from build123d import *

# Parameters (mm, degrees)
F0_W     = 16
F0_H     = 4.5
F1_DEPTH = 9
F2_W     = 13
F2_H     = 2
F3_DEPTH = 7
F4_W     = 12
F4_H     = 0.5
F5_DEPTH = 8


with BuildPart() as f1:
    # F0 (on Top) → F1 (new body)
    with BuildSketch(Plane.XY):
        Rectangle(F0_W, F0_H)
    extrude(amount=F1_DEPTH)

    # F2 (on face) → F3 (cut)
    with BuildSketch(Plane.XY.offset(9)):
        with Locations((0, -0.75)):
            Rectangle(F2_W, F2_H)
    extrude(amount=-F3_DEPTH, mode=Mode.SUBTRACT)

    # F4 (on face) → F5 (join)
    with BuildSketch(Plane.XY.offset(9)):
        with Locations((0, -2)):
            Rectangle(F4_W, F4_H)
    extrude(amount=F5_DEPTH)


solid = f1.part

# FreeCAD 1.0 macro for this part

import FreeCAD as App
import Part
import Sketcher

doc = App.newDocument("Part")
body = doc.addObject("PartDesign::Body", "Body")

sketch1 = body.newObject("Sketcher::SketchObject", "Sketch")
sketch1.AttachmentSupport = (doc.getObject("XY_Plane"), [""])
sketch1.MapMode = "FlatFace"
sketch1.addGeometry(Part.LineSegment(App.Vector(-8, 2.25, 0), App.Vector(-8, -2.25, 0)), False)
sketch1.addGeometry(Part.LineSegment(App.Vector(-8, -2.25, 0), App.Vector(8, -2.25, 0)), False)
sketch1.addGeometry(Part.LineSegment(App.Vector(8, -2.25, 0), App.Vector(8, 2.25, 0)), False)
sketch1.addGeometry(Part.LineSegment(App.Vector(8, 2.25, 0), App.Vector(-8, 2.25, 0)), False)
sketch1.addConstraint(Sketcher.Constraint("Coincident", 0, 2, 1, 1))
sketch1.addConstraint(Sketcher.Constraint("Coincident", 1, 2, 2, 1))
sketch1.addConstraint(Sketcher.Constraint("Coincident", 2, 2, 3, 1))
sketch1.addConstraint(Sketcher.Constraint("Coincident", 3, 2, 0, 1))
sketch1.addConstraint(Sketcher.Constraint("Vertical", 0))
sketch1.addConstraint(Sketcher.Constraint("Horizontal", 1))
sketch1.addConstraint(Sketcher.Constraint("Vertical", 2))
sketch1.addConstraint(Sketcher.Constraint("Horizontal", 3))
sketch1.addConstraint(Sketcher.Constraint("Symmetric", 0, 2, 2, 2, -1, 1))
sketch1.addConstraint(Sketcher.Constraint("DistanceX", 1, 1, 1, 2, 16.0))
sketch1.addConstraint(Sketcher.Constraint("DistanceY", 0, 2, 0, 1, 4.5))
pad1 = body.newObject("PartDesign::Pad", "Pad")
pad1.Profile = sketch1
pad1.Length = 9

sketch2 = body.newObject("Sketcher::SketchObject", "Sketch001")
sketch2.AttachmentSupport = (doc.getObject("XY_Plane"), [""])
sketch2.MapMode = "FlatFace"
sketch2.AttachmentOffset = App.Placement(App.Vector(0, 0, 9), App.Rotation())
sketch2.addGeometry(Part.LineSegment(App.Vector(-6.5, 0.25, 0), App.Vector(-6.5, -1.75, 0)), False)
sketch2.addGeometry(Part.LineSegment(App.Vector(-6.5, -1.75, 0), App.Vector(6.5, -1.75, 0)), False)
sketch2.addGeometry(Part.LineSegment(App.Vector(6.5, -1.75, 0), App.Vector(6.5, 0.25, 0)), False)
sketch2.addGeometry(Part.LineSegment(App.Vector(6.5, 0.25, 0), App.Vector(-6.5, 0.25, 0)), False)
sketch2.addConstraint(Sketcher.Constraint("Coincident", 0, 2, 1, 1))
sketch2.addConstraint(Sketcher.Constraint("Coincident", 1, 2, 2, 1))
sketch2.addConstraint(Sketcher.Constraint("Coincident", 2, 2, 3, 1))
sketch2.addConstraint(Sketcher.Constraint("Coincident", 3, 2, 0, 1))
sketch2.addConstraint(Sketcher.Constraint("Vertical", 0))
sketch2.addConstraint(Sketcher.Constraint("Horizontal", 1))
sketch2.addConstraint(Sketcher.Constraint("Vertical", 2))
sketch2.addConstraint(Sketcher.Constraint("Horizontal", 3))
sketch2.addConstraint(Sketcher.Constraint("DistanceX", 1, 1, 1, 2, 13.0))
sketch2.addConstraint(Sketcher.Constraint("DistanceY", 0, 2, 0, 1, 2.0))
sketch2.addConstraint(Sketcher.Constraint("DistanceX", 0, 2, -1, 1, 6.5))
sketch2.addConstraint(Sketcher.Constraint("DistanceY", 0, 2, -1, 1, 1.75))
pocket1 = body.newObject("PartDesign::Pocket", "Pocket")
pocket1.Profile = sketch2
pocket1.Length = 7

sketch3 = body.newObject("Sketcher::SketchObject", "Sketch002")
sketch3.AttachmentSupport = (doc.getObject("XY_Plane"), [""])
sketch3.MapMode = "FlatFace"
sketch3.AttachmentOffset = App.Placement(App.Vector(0, 0, 9), App.Rotation())
sketch3.addGeometry(Part.LineSegment(App.Vector(-6, -1.75, 0), App.Vector(-6, -2.25, 0)), False)
sketch3.addGeometry(Part.LineSegment(App.Vector(-6, -2.25, 0), App.Vector(6, -2.25, 0)), False)
sketch3.addGeometry(Part.LineSegment(App.Vector(6, -2.25, 0), App.Vector(6, -1.75, 0)), False)
sketch3.addGeometry(Part.LineSegment(App.Vector(6, -1.75, 0), App.Vector(-6, -1.75, 0)), False)
sketch3.addConstraint(Sketcher.Constraint("Coincident", 0, 2, 1, 1))
sketch3.addConstraint(Sketcher.Constraint("Coincident", 1, 2, 2, 1))
sketch3.addConstraint(Sketcher.Constraint("Coincident", 2, 2, 3, 1))
sketch3.addConstraint(Sketcher.Constraint("Coincident", 3, 2, 0, 1))
sketch3.addConstraint(Sketcher.Constraint("Vertical", 0))
sketch3.addConstraint(Sketcher.Constraint("Horizontal", 1))
sketch3.addConstraint(Sketcher.Constraint("Vertical", 2))
sketch3.addConstraint(Sketcher.Constraint("Horizontal", 3))
sketch3.addConstraint(Sketcher.Constraint("DistanceX", 1, 1, 1, 2, 12.0))
sketch3.addConstraint(Sketcher.Constraint("DistanceY", 0, 2, 0, 1, 0.5))
sketch3.addConstraint(Sketcher.Constraint("DistanceX", 0, 2, -1, 1, 6.0))
sketch3.addConstraint(Sketcher.Constraint("DistanceY", 0, 2, -1, 1, 2.25))
pad2 = body.newObject("PartDesign::Pad", "Pad001")
pad2.Profile = sketch3
pad2.Length = 8

doc.recompute()
